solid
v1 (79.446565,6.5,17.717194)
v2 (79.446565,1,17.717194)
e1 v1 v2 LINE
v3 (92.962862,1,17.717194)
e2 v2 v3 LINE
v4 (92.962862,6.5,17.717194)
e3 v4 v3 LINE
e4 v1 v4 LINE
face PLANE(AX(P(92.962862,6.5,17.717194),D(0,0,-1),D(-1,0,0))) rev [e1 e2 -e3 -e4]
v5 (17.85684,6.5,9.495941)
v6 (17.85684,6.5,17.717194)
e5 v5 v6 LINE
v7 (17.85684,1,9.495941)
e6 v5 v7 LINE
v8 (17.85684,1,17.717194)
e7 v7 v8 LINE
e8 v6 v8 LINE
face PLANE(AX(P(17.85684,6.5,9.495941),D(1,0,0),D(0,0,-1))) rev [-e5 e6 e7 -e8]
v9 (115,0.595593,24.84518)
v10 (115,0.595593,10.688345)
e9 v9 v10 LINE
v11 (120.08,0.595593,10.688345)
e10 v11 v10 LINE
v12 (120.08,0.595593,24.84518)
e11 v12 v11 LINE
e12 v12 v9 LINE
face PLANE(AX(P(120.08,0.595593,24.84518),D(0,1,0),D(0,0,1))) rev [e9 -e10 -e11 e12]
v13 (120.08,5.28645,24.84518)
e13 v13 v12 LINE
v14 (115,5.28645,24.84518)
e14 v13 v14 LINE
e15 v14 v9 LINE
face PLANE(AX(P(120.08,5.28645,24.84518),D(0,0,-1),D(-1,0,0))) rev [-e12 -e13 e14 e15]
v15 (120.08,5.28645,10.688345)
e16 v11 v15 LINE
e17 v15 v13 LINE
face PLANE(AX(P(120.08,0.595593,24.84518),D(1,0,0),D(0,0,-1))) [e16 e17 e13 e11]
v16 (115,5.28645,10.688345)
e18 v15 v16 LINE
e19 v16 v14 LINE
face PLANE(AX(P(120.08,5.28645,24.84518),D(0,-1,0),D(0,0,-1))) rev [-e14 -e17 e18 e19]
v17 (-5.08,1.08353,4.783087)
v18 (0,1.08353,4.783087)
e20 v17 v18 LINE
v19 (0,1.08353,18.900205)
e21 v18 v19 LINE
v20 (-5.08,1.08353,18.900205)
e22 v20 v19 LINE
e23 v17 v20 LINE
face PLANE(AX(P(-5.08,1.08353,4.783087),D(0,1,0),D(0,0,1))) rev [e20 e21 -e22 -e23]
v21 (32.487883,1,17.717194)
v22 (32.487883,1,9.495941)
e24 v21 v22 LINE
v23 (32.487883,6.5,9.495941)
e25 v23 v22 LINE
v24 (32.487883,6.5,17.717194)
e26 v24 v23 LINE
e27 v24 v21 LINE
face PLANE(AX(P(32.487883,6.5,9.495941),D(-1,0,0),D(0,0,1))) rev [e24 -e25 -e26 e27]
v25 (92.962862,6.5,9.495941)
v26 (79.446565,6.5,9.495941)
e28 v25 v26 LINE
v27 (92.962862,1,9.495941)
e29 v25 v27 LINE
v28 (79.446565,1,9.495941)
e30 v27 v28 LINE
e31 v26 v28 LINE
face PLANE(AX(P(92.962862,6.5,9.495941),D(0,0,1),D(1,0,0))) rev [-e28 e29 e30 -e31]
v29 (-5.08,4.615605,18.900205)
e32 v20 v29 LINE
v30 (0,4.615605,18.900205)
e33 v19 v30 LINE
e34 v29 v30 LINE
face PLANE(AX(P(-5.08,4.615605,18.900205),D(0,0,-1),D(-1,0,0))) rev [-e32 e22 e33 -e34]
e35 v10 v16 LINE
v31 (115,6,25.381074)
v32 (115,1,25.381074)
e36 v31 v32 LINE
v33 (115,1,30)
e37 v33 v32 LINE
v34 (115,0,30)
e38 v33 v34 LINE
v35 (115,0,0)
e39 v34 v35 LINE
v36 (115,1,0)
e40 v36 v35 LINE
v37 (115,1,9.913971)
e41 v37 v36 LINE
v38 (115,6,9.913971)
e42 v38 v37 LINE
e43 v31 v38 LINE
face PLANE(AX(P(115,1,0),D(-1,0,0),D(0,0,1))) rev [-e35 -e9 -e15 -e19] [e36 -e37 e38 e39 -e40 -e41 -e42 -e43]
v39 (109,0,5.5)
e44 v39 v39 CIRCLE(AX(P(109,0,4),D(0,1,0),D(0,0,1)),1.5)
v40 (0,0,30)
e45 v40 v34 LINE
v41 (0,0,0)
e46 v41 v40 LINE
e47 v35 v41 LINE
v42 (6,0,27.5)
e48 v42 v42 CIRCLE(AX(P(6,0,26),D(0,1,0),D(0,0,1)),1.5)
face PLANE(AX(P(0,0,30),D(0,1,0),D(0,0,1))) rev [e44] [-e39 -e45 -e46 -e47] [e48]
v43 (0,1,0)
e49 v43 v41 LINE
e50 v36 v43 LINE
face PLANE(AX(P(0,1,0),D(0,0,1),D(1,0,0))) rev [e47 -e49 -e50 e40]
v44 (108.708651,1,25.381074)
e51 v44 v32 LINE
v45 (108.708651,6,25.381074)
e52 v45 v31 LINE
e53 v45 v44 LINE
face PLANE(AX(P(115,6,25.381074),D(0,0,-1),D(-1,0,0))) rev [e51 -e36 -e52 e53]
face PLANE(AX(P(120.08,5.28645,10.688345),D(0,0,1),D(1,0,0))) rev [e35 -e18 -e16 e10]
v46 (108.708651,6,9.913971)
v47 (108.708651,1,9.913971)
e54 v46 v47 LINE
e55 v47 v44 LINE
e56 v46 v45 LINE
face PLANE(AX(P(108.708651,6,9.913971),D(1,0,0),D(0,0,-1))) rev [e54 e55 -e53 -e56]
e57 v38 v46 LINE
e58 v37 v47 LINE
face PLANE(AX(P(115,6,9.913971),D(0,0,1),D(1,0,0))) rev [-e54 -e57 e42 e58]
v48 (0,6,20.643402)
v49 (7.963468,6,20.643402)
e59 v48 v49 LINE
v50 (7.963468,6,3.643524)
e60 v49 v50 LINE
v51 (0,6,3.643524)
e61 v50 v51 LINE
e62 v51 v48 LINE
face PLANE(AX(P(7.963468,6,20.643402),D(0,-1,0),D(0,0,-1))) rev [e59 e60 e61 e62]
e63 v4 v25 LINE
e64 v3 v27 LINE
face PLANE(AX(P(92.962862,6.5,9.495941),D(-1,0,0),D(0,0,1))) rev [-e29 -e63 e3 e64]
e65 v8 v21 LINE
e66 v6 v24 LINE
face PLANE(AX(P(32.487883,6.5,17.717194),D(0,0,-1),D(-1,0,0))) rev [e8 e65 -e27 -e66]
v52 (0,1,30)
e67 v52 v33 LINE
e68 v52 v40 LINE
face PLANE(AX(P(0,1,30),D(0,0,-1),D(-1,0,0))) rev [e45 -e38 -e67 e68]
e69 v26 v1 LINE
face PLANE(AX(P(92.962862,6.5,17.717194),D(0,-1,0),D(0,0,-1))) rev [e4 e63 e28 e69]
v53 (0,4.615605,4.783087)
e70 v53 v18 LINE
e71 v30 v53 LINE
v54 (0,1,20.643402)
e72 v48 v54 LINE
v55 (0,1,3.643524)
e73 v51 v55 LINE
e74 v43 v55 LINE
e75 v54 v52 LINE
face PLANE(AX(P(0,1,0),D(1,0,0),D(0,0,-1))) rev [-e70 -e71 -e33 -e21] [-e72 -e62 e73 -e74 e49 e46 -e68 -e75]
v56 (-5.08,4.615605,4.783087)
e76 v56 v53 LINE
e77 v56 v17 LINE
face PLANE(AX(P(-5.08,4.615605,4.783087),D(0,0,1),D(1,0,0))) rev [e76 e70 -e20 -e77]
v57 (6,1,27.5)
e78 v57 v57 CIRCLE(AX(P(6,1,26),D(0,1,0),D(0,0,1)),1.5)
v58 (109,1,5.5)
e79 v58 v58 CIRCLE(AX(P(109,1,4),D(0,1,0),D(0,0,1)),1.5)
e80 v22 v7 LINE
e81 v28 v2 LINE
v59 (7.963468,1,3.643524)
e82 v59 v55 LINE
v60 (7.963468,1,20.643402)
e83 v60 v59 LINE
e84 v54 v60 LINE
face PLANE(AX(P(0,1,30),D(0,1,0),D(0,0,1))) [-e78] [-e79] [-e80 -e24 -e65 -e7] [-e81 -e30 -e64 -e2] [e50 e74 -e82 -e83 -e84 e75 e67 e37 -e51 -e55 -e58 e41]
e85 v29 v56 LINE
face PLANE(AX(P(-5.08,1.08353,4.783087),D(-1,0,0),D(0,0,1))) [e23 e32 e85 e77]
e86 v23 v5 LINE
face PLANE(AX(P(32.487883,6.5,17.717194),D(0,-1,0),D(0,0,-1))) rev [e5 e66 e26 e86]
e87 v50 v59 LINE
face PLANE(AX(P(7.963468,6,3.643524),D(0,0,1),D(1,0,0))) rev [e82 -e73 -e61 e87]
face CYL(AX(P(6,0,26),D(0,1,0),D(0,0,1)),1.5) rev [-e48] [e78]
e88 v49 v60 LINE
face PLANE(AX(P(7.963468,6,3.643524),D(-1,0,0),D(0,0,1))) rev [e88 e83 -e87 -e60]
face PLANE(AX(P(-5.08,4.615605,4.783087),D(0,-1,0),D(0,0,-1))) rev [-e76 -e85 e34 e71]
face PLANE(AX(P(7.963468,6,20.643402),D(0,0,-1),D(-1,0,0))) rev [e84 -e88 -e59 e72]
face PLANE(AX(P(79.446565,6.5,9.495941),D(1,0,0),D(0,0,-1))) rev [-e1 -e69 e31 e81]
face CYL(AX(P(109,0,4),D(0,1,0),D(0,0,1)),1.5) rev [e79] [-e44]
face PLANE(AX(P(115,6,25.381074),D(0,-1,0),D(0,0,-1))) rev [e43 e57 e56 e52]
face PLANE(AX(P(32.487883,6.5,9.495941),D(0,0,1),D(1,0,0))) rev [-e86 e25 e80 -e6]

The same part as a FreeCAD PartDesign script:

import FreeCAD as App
import Part
import Sketcher

V = App.Vector


def add_polygon(sketch, points):
    """Adds a closed chain of lines whose ends are joined by coincident constraints."""
    first, n = sketch.GeometryCount, len(points)
    for a, b in zip(points, points[1:] + points[:1]):
        sketch.addGeometry(Part.LineSegment(App.Vector(*a, 0), App.Vector(*b, 0)), False)
    for i in range(n):
        sketch.addConstraint(Sketcher.Constraint("Coincident", first + i, 2, first + (i + 1) % n, 1))

doc = App.newDocument("Part")
body = doc.addObject("PartDesign::Body", "Body")

# Sketch on XZ plane
sketch1 = body.newObject("Sketcher::SketchObject", "Sketch")
sketch1.AttachmentSupport = (doc.getObject("XZ_Plane"), [""])
sketch1.MapMode = "FlatFace"
add_polygon(sketch1, [(0, 0), (0, 30), (115, 30), (115, 0)])  # lines 0-3
sketch1.addConstraint(Sketcher.Constraint("Vertical", 0))
sketch1.addConstraint(Sketcher.Constraint("Horizontal", 1))
sketch1.addConstraint(Sketcher.Constraint("Vertical", 2))
sketch1.addConstraint(Sketcher.Constraint("Horizontal", 3))
sketch1.addConstraint(Sketcher.Constraint("Coincident", 3, 2, -1, 1))
sketch1.addConstraint(Sketcher.Constraint("DistanceX", 1, 1, 1, 2, 115.0))
sketch1.addConstraint(Sketcher.Constraint("DistanceY", 0, 1, 0, 2, 30.0))
pad1 = body.newObject("PartDesign::Pad", "Pad")
pad1.Profile = sketch1
pad1.Length = 1
pad1.Reversed = True

# Sketch on XZ plane
sketch2 = body.newObject("Sketcher::SketchObject", "Sketch001")
sketch2.AttachmentSupport = (doc.getObject("XZ_Plane"), [""])
sketch2.MapMode = "FlatFace"
sketch2.AttachmentOffset = App.Placement(V(0, 0, -1), App.Rotation())
sketch2.addGeometry(Part.Circle(V(109, 4, 0), V(0, 0, 1), 1.5), False)
sketch2.addGeometry(Part.Circle(V(6, 26, 0), V(0, 0, 1), 1.5), False)
sketch2.addConstraint(Sketcher.Constraint("Equal", 0, 1))
sketch2.addConstraint(Sketcher.Constraint("Diameter", 0, 3.0))
sketch2.addConstraint(Sketcher.Constraint("DistanceX", -1, 1, 0, 3, 109.0))
sketch2.addConstraint(Sketcher.Constraint("DistanceY", -1, 1, 0, 3, 4.0))
sketch2.addConstraint(Sketcher.Constraint("DistanceX", -1, 1, 1, 3, 6.0))
sketch2.addConstraint(Sketcher.Constraint("DistanceY", -1, 1, 1, 3, 26.0))
pocket1 = body.newObject("PartDesign::Pocket", "Pocket")
pocket1.Profile = sketch2
pocket1.Length = 1
pocket1.Reversed = True

# Sketch on XZ plane
sketch3 = body.newObject("Sketcher::SketchObject", "Sketch002")
sketch3.AttachmentSupport = (doc.getObject("XZ_Plane"), [""])
sketch3.MapMode = "FlatFace"
sketch3.AttachmentOffset = App.Placement(V(0, 0, -1), App.Rotation())
add_polygon(sketch3, [(93, 18), (93, 9), (79, 9), (79, 18)])  # lines 0-3
add_polygon(sketch3, [(32, 18), (32, 9), (18, 9), (18, 18)])  # lines 4-7
sketch3.addConstraint(Sketcher.Constraint("Vertical", 0))
sketch3.addConstraint(Sketcher.Constraint("Horizontal", 1))
sketch3.addConstraint(Sketcher.Constraint("Vertical", 2))
sketch3.addConstraint(Sketcher.Constraint("Horizontal", 3))
sketch3.addConstraint(Sketcher.Constraint("Vertical", 4))
sketch3.addConstraint(Sketcher.Constraint("Horizontal", 5))
sketch3.addConstraint(Sketcher.Constraint("Vertical", 6))
sketch3.addConstraint(Sketcher.Constraint("Horizontal", 7))
sketch3.addConstraint(Sketcher.Constraint("Horizontal", 1, 2, 4, 2))
sketch3.addConstraint(Sketcher.Constraint("Horizontal", 3, 2, 6, 2))
sketch3.addConstraint(Sketcher.Constraint("DistanceX", 1, 2, 1, 1, 13.516297))
sketch3.addConstraint(Sketcher.Constraint("DistanceX", 5, 2, 5, 1, 14.631043))
sketch3.addConstraint(Sketcher.Constraint("DistanceY", 0, 2, 0, 1, 8.221253))
sketch3.addConstraint(Sketcher.Constraint("DistanceX", -1, 1, 0, 2, 92.962862))
sketch3.addConstraint(Sketcher.Constraint("DistanceY", -1, 1, 0, 2, 9.495941))
sketch3.addConstraint(Sketcher.Constraint("DistanceX", -1, 1, 5, 2, 17.85684))
pad2 = body.newObject("PartDesign::Pad", "Pad001")
pad2.Profile = sketch3
pad2.Length = 5.5
pad2.Reversed = True

# Sketch on XZ plane
sketch4 = body.newObject("Sketcher::SketchObject", "Sketch003")
sketch4.AttachmentSupport = (doc.getObject("XZ_Plane"), [""])
sketch4.MapMode = "FlatFace"
sketch4.AttachmentOffset = App.Placement(V(0, 0, -1), App.Rotation())
add_polygon(sketch4, [(115, 25), (115, 10), (109, 10), (109, 25)])  # lines 0-3
add_polygon(sketch4, [(8, 21), (8, 4), (0, 4), (0, 21)])  # lines 4-7
sketch4.addConstraint(Sketcher.Constraint("Vertical", 0))
sketch4.addConstraint(Sketcher.Constraint("Horizontal", 1))
sketch4.addConstraint(Sketcher.Constraint("Vertical", 2))
sketch4.addConstraint(Sketcher.Constraint("Horizontal", 3))
sketch4.addConstraint(Sketcher.Constraint("Vertical", 4))
sketch4.addConstraint(Sketcher.Constraint("Horizontal", 5))
sketch4.addConstraint(Sketcher.Constraint("Vertical", 6))
sketch4.addConstraint(Sketcher.Constraint("Horizontal", 7))
sketch4.addConstraint(Sketcher.Constraint("PointOnObject", 5, 2, -2))
sketch4.addConstraint(Sketcher.Constraint("DistanceX", -1, 1, 0, 2, 115.0))
sketch4.addConstraint(Sketcher.Constraint("DistanceX", 1, 2, 1, 1, 6.291349))
sketch4.addConstraint(Sketcher.Constraint("DistanceY", 4, 2, 4, 1, 16.999879))
sketch4.addConstraint(Sketcher.Constraint("DistanceX", 5, 2, 5, 1, 7.963468))
sketch4.addConstraint(Sketcher.Constraint("DistanceY", 0, 2, 0, 1, 15.467103))
sketch4.addConstraint(Sketcher.Constraint("DistanceY", -1, 1, 0, 2, 9.913971))
sketch4.addConstraint(Sketcher.Constraint("DistanceY", 4, 2, 2, 2, 21.73755))
pad3 = body.newObject("PartDesign::Pad", "Pad002")
pad3.Profile = sketch4
pad3.Length = 5
pad3.Reversed = True

# Sketch on YZ plane
sketch5 = body.newObject("Sketcher::SketchObject", "Sketch004")
sketch5.AttachmentSupport = (doc.getObject("YZ_Plane"), [""])
sketch5.MapMode = "FlatFace"
sketch5.AttachmentOffset = App.Placement(V(0, 0, 115), App.Rotation())
add_polygon(sketch5, [(5.3, 24.8), (0.6, 24.8), (0.6, 10.7), (5.3, 10.7)])  # lines 0-3
sketch5.addConstraint(Sketcher.Constraint("Horizontal", 0))
sketch5.addConstraint(Sketcher.Constraint("Vertical", 1))
sketch5.addConstraint(Sketcher.Constraint("Horizontal", 2))
sketch5.addConstraint(Sketcher.Constraint("Vertical", 3))
sketch5.addConstraint(Sketcher.Constraint("DistanceX", 0, 2, 0, 1, 4.690856))
sketch5.addConstraint(Sketcher.Constraint("DistanceY", 1, 2, 1, 1, 14.156836))
sketch5.addConstraint(Sketcher.Constraint("DistanceY", -1, 1, 0, 2, 24.84518))
sketch5.addConstraint(Sketcher.Constraint("DistanceX", -1, 1, 2, 2, 5.28645))
pad4 = body.newObject("PartDesign::Pad", "Pad003")
pad4.Profile = sketch5
pad4.Length = 5.08

# Sketch on YZ plane
sketch6 = body.newObject("Sketcher::SketchObject", "Sketch005")
sketch6.AttachmentSupport = (doc.getObject("YZ_Plane"), [""])
sketch6.MapMode = "FlatFace"
add_polygon(sketch6, [(4.6, 4.8), (1.1, 4.8), (1.1, 18.9), (4.6, 18.9)])  # lines 0-3
sketch6.addConstraint(Sketcher.Constraint("Horizontal", 0))
sketch6.addConstraint(Sketcher.Constraint("Vertical", 1))
sketch6.addConstraint(Sketcher.Constraint("Horizontal", 2))
sketch6.addConstraint(Sketcher.Constraint("Vertical", 3))
sketch6.addConstraint(Sketcher.Constraint("DistanceY", 1, 1, 1, 2, 14.117119))
sketch6.addConstraint(Sketcher.Constraint("DistanceX", 0, 2, 0, 1, 3.532075))
sketch6.addConstraint(Sketcher.Constraint("DistanceX", -1, 1, 0, 2, 1.08353))
sketch6.addConstraint(Sketcher.Constraint("DistanceY", -1, 1, 0, 2, 4.783087))
pad5 = body.newObject("PartDesign::Pad", "Pad004")
pad5.Profile = sketch6
pad5.Length = 5.08
pad5.Reversed = True

doc.recompute()
